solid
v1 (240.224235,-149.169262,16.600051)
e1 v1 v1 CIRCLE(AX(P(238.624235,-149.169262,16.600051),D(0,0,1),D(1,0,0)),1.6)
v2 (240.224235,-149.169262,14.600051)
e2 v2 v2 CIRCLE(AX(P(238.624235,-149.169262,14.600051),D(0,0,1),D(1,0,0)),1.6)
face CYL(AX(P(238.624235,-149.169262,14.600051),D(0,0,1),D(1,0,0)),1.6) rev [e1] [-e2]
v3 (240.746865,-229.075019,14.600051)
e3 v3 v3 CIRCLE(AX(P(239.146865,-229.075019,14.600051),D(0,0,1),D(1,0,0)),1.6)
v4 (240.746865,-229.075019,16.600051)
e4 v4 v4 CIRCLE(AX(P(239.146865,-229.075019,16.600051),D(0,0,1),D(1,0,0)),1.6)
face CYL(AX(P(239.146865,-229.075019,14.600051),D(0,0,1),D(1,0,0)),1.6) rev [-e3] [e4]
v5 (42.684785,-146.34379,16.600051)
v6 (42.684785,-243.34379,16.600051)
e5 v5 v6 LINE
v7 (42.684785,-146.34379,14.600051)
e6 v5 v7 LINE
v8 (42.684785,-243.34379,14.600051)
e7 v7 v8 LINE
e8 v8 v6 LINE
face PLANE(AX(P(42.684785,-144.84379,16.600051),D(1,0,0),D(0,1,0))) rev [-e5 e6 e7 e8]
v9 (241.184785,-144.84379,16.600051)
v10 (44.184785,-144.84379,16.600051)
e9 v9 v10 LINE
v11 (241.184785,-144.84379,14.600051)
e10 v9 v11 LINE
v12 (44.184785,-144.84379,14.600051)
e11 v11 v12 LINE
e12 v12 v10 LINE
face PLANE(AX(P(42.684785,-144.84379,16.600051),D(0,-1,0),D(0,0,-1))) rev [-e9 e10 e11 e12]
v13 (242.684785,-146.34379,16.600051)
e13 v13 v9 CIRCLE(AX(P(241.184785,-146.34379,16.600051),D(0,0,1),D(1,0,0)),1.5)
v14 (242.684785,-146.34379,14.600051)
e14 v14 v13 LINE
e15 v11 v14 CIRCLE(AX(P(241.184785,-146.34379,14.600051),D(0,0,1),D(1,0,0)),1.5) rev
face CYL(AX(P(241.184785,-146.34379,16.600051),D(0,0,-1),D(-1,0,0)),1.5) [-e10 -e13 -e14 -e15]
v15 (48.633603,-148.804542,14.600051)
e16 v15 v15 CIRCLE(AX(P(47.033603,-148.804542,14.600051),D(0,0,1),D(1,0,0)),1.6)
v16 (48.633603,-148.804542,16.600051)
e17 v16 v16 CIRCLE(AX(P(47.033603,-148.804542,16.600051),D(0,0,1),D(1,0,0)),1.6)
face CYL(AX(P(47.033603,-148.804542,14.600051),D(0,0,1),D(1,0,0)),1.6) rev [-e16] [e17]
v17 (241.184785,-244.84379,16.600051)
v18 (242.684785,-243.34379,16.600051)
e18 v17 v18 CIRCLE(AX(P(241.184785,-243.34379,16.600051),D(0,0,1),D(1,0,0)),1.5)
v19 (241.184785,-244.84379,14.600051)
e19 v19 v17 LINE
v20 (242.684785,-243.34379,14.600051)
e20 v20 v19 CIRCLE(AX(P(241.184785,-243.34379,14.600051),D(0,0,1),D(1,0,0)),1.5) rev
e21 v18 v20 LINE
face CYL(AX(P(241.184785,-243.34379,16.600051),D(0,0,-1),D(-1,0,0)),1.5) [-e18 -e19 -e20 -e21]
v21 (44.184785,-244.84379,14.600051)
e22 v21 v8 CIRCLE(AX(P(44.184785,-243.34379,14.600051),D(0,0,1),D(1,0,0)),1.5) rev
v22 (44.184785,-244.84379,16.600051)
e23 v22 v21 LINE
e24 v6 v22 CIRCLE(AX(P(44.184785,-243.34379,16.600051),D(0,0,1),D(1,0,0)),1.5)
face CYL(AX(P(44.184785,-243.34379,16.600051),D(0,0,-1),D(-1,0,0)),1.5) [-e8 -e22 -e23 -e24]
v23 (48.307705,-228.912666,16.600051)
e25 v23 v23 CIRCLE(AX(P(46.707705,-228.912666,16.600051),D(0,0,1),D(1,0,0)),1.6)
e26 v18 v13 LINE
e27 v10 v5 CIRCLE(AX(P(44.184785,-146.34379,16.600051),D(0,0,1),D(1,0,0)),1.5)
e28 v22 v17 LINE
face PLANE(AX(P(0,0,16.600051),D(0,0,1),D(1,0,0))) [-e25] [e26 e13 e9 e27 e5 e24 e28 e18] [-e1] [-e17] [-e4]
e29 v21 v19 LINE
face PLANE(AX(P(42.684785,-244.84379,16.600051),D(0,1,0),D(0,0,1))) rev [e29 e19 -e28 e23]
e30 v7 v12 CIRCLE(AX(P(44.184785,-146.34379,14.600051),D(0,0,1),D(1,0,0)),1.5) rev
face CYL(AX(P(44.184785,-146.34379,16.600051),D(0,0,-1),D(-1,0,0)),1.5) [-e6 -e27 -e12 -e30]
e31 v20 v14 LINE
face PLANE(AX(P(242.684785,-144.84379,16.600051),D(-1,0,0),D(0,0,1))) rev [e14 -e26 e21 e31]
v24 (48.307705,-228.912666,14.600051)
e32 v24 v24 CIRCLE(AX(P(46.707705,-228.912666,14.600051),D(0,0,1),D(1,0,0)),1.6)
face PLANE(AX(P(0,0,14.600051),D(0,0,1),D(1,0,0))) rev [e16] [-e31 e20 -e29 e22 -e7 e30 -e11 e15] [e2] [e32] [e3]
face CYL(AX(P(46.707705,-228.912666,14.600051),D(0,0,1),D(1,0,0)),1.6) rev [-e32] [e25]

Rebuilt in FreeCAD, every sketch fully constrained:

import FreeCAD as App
import Part
import Sketcher
Q = App.Units.Quantity


def edges_at(feature, points):
    """Names of the edges that pass closest to the given points."""
    edges = feature.Shape.Edges
    near = lambda p: min(range(len(edges)), key=lambda i: edges[i].distToShape(Part.Vertex(*p))[0])
    return sorted({f"Edge{near(p) + 1}" for p in points})

doc = App.newDocument("Part")
params = doc.addObject("Spreadsheet::Sheet", "Params")
for row, (alias, value) in enumerate([
    ("sketch1_width", "200 mm"),
    ("sketch1_height", "100 mm"),
    ("pad1_length", "2 mm"),
    ("sketch2_diameter", "3.2 mm"),
    ("pocket1_length", "2 mm"),
    ("fillet_radius", "1.5 mm"),
], start=1):
    params.set(f"A{row}", alias)
    params.set(f"B{row}", "=" + value)
    params.setAlias(f"B{row}", alias)

body = doc.addObject("PartDesign::Body", "Body")

# Sketch on XY plane
sketch1 = doc.addObject("Sketcher::SketchObject", "Sketch")
body.addObject(sketch1)
sketch1.AttachmentSupport = (doc.XY_Plane, [""])
sketch1.MapMode = "FlatFace"
sketch1.AttachmentOffset = App.Placement(App.Vector(0, 0, 14.600051), App.Rotation())
sketch1.addGeometry([
    Part.LineSegment(App.Vector(43, -145, 0), App.Vector(43, -245, 0)),
    Part.LineSegment(App.Vector(43, -245, 0), App.Vector(243, -245, 0)),
    Part.LineSegment(App.Vector(243, -245, 0), App.Vector(243, -145, 0)),
    Part.LineSegment(App.Vector(243, -145, 0), App.Vector(43, -145, 0)),
], False)
sketch1.addConstraint([
    Sketcher.Constraint("Coincident", 0, 2, 1, 1),
    Sketcher.Constraint("Coincident", 1, 2, 2, 1),
    Sketcher.Constraint("Coincident", 2, 2, 3, 1),
    Sketcher.Constraint("Coincident", 3, 2, 0, 1),
    Sketcher.Constraint("Vertical", 0),
    Sketcher.Constraint("Horizontal", 1),
    Sketcher.Constraint("Vertical", 2),
    Sketcher.Constraint("Horizontal", 3),
    Sketcher.Constraint("DistanceX", 1, 1, 1, 2, Q("200 mm")),
    Sketcher.Constraint("DistanceY", 0, 2, 0, 1, Q("100 mm")),
    Sketcher.Constraint("DistanceY", 0, 2, -1, 1, Q("244.84379 mm")),
    Sketcher.Constraint("DistanceX", -1, 1, 0, 2, Q("42.684785 mm")),
])
sketch1.setExpression("Constraints[8]", "Params.sketch1_width")
sketch1.setExpression("Constraints[9]", "Params.sketch1_height")
pad1 = doc.addObject("PartDesign::Pad", "Pad")
body.addObject(pad1)
pad1.Profile = sketch1
pad1.setExpression("Length", "Params.pad1_length")

# Sketch on XY plane
sketch2 = doc.addObject("Sketcher::SketchObject", "Sketch001")
body.addObject(sketch2)
sketch2.AttachmentSupport = (doc.XY_Plane, [""])
sketch2.MapMode = "FlatFace"
sketch2.AttachmentOffset = App.Placement(App.Vector(0, 0, 16.600051), App.Rotation())
sketch2.addGeometry([
    Part.Circle(App.Vector(47, -148.8, 0), App.Vector(0, 0, 1), 1.6),
    Part.Circle(App.Vector(238.6, -149.2, 0), App.Vector(0, 0, 1), 1.6),
    Part.Circle(App.Vector(46.7, -228.9, 0), App.Vector(0, 0, 1), 1.6),
    Part.Circle(App.Vector(239.1, -229.1, 0), App.Vector(0, 0, 1), 1.6),
], False)
sketch2.addConstraint([
    Sketcher.Constraint("Equal", 0, 1),
    Sketcher.Constraint("Equal", 1, 2),
    Sketcher.Constraint("Equal", 2, 3),
    Sketcher.Constraint("Diameter", 0, Q("3.2 mm")),
    Sketcher.Constraint("DistanceX", 2, 3, 0, 3, Q("0.325898 mm")),
    Sketcher.Constraint("DistanceY", 3, 3, -1, 1, Q("229.075019 mm")),
    Sketcher.Constraint("DistanceX", 0, 3, 1, 3, Q("191.590632 mm")),
    Sketcher.Constraint("DistanceY", 1, 3, 0, 3, Q("0.36472 mm")),
    Sketcher.Constraint("DistanceX", 1, 3, 3, 3, Q("0.52263 mm")),
    Sketcher.Constraint("DistanceX", -1, 1, 0, 3, Q("47.033603 mm")),
    Sketcher.Constraint("DistanceY", 0, 3, -1, 1, Q("148.804542 mm")),
    Sketcher.Constraint("DistanceY", 2, 3, -1, 1, Q("228.912666 mm")),
])
sketch2.setExpression("Constraints[3]", "Params.sketch2_diameter")
pocket1 = doc.addObject("PartDesign::Pocket", "Pocket")
body.addObject(pocket1)
pocket1.Profile = sketch2
pocket1.setExpression("Length", "Params.pocket1_length")
doc.recompute()

fillet = doc.addObject("PartDesign::Fillet", "Fillet")
body.addObject(fillet)
fillet.Base = (pocket1, edges_at(pocket1, [
    (42.685, -144.844, 15.6),
    (242.685, -144.844, 15.6),
    (242.685, -244.844, 15.6),
    (42.685, -244.844, 15.6),
]))
fillet.setExpression("Radius", "Params.fillet_radius")

doc.recompute()
